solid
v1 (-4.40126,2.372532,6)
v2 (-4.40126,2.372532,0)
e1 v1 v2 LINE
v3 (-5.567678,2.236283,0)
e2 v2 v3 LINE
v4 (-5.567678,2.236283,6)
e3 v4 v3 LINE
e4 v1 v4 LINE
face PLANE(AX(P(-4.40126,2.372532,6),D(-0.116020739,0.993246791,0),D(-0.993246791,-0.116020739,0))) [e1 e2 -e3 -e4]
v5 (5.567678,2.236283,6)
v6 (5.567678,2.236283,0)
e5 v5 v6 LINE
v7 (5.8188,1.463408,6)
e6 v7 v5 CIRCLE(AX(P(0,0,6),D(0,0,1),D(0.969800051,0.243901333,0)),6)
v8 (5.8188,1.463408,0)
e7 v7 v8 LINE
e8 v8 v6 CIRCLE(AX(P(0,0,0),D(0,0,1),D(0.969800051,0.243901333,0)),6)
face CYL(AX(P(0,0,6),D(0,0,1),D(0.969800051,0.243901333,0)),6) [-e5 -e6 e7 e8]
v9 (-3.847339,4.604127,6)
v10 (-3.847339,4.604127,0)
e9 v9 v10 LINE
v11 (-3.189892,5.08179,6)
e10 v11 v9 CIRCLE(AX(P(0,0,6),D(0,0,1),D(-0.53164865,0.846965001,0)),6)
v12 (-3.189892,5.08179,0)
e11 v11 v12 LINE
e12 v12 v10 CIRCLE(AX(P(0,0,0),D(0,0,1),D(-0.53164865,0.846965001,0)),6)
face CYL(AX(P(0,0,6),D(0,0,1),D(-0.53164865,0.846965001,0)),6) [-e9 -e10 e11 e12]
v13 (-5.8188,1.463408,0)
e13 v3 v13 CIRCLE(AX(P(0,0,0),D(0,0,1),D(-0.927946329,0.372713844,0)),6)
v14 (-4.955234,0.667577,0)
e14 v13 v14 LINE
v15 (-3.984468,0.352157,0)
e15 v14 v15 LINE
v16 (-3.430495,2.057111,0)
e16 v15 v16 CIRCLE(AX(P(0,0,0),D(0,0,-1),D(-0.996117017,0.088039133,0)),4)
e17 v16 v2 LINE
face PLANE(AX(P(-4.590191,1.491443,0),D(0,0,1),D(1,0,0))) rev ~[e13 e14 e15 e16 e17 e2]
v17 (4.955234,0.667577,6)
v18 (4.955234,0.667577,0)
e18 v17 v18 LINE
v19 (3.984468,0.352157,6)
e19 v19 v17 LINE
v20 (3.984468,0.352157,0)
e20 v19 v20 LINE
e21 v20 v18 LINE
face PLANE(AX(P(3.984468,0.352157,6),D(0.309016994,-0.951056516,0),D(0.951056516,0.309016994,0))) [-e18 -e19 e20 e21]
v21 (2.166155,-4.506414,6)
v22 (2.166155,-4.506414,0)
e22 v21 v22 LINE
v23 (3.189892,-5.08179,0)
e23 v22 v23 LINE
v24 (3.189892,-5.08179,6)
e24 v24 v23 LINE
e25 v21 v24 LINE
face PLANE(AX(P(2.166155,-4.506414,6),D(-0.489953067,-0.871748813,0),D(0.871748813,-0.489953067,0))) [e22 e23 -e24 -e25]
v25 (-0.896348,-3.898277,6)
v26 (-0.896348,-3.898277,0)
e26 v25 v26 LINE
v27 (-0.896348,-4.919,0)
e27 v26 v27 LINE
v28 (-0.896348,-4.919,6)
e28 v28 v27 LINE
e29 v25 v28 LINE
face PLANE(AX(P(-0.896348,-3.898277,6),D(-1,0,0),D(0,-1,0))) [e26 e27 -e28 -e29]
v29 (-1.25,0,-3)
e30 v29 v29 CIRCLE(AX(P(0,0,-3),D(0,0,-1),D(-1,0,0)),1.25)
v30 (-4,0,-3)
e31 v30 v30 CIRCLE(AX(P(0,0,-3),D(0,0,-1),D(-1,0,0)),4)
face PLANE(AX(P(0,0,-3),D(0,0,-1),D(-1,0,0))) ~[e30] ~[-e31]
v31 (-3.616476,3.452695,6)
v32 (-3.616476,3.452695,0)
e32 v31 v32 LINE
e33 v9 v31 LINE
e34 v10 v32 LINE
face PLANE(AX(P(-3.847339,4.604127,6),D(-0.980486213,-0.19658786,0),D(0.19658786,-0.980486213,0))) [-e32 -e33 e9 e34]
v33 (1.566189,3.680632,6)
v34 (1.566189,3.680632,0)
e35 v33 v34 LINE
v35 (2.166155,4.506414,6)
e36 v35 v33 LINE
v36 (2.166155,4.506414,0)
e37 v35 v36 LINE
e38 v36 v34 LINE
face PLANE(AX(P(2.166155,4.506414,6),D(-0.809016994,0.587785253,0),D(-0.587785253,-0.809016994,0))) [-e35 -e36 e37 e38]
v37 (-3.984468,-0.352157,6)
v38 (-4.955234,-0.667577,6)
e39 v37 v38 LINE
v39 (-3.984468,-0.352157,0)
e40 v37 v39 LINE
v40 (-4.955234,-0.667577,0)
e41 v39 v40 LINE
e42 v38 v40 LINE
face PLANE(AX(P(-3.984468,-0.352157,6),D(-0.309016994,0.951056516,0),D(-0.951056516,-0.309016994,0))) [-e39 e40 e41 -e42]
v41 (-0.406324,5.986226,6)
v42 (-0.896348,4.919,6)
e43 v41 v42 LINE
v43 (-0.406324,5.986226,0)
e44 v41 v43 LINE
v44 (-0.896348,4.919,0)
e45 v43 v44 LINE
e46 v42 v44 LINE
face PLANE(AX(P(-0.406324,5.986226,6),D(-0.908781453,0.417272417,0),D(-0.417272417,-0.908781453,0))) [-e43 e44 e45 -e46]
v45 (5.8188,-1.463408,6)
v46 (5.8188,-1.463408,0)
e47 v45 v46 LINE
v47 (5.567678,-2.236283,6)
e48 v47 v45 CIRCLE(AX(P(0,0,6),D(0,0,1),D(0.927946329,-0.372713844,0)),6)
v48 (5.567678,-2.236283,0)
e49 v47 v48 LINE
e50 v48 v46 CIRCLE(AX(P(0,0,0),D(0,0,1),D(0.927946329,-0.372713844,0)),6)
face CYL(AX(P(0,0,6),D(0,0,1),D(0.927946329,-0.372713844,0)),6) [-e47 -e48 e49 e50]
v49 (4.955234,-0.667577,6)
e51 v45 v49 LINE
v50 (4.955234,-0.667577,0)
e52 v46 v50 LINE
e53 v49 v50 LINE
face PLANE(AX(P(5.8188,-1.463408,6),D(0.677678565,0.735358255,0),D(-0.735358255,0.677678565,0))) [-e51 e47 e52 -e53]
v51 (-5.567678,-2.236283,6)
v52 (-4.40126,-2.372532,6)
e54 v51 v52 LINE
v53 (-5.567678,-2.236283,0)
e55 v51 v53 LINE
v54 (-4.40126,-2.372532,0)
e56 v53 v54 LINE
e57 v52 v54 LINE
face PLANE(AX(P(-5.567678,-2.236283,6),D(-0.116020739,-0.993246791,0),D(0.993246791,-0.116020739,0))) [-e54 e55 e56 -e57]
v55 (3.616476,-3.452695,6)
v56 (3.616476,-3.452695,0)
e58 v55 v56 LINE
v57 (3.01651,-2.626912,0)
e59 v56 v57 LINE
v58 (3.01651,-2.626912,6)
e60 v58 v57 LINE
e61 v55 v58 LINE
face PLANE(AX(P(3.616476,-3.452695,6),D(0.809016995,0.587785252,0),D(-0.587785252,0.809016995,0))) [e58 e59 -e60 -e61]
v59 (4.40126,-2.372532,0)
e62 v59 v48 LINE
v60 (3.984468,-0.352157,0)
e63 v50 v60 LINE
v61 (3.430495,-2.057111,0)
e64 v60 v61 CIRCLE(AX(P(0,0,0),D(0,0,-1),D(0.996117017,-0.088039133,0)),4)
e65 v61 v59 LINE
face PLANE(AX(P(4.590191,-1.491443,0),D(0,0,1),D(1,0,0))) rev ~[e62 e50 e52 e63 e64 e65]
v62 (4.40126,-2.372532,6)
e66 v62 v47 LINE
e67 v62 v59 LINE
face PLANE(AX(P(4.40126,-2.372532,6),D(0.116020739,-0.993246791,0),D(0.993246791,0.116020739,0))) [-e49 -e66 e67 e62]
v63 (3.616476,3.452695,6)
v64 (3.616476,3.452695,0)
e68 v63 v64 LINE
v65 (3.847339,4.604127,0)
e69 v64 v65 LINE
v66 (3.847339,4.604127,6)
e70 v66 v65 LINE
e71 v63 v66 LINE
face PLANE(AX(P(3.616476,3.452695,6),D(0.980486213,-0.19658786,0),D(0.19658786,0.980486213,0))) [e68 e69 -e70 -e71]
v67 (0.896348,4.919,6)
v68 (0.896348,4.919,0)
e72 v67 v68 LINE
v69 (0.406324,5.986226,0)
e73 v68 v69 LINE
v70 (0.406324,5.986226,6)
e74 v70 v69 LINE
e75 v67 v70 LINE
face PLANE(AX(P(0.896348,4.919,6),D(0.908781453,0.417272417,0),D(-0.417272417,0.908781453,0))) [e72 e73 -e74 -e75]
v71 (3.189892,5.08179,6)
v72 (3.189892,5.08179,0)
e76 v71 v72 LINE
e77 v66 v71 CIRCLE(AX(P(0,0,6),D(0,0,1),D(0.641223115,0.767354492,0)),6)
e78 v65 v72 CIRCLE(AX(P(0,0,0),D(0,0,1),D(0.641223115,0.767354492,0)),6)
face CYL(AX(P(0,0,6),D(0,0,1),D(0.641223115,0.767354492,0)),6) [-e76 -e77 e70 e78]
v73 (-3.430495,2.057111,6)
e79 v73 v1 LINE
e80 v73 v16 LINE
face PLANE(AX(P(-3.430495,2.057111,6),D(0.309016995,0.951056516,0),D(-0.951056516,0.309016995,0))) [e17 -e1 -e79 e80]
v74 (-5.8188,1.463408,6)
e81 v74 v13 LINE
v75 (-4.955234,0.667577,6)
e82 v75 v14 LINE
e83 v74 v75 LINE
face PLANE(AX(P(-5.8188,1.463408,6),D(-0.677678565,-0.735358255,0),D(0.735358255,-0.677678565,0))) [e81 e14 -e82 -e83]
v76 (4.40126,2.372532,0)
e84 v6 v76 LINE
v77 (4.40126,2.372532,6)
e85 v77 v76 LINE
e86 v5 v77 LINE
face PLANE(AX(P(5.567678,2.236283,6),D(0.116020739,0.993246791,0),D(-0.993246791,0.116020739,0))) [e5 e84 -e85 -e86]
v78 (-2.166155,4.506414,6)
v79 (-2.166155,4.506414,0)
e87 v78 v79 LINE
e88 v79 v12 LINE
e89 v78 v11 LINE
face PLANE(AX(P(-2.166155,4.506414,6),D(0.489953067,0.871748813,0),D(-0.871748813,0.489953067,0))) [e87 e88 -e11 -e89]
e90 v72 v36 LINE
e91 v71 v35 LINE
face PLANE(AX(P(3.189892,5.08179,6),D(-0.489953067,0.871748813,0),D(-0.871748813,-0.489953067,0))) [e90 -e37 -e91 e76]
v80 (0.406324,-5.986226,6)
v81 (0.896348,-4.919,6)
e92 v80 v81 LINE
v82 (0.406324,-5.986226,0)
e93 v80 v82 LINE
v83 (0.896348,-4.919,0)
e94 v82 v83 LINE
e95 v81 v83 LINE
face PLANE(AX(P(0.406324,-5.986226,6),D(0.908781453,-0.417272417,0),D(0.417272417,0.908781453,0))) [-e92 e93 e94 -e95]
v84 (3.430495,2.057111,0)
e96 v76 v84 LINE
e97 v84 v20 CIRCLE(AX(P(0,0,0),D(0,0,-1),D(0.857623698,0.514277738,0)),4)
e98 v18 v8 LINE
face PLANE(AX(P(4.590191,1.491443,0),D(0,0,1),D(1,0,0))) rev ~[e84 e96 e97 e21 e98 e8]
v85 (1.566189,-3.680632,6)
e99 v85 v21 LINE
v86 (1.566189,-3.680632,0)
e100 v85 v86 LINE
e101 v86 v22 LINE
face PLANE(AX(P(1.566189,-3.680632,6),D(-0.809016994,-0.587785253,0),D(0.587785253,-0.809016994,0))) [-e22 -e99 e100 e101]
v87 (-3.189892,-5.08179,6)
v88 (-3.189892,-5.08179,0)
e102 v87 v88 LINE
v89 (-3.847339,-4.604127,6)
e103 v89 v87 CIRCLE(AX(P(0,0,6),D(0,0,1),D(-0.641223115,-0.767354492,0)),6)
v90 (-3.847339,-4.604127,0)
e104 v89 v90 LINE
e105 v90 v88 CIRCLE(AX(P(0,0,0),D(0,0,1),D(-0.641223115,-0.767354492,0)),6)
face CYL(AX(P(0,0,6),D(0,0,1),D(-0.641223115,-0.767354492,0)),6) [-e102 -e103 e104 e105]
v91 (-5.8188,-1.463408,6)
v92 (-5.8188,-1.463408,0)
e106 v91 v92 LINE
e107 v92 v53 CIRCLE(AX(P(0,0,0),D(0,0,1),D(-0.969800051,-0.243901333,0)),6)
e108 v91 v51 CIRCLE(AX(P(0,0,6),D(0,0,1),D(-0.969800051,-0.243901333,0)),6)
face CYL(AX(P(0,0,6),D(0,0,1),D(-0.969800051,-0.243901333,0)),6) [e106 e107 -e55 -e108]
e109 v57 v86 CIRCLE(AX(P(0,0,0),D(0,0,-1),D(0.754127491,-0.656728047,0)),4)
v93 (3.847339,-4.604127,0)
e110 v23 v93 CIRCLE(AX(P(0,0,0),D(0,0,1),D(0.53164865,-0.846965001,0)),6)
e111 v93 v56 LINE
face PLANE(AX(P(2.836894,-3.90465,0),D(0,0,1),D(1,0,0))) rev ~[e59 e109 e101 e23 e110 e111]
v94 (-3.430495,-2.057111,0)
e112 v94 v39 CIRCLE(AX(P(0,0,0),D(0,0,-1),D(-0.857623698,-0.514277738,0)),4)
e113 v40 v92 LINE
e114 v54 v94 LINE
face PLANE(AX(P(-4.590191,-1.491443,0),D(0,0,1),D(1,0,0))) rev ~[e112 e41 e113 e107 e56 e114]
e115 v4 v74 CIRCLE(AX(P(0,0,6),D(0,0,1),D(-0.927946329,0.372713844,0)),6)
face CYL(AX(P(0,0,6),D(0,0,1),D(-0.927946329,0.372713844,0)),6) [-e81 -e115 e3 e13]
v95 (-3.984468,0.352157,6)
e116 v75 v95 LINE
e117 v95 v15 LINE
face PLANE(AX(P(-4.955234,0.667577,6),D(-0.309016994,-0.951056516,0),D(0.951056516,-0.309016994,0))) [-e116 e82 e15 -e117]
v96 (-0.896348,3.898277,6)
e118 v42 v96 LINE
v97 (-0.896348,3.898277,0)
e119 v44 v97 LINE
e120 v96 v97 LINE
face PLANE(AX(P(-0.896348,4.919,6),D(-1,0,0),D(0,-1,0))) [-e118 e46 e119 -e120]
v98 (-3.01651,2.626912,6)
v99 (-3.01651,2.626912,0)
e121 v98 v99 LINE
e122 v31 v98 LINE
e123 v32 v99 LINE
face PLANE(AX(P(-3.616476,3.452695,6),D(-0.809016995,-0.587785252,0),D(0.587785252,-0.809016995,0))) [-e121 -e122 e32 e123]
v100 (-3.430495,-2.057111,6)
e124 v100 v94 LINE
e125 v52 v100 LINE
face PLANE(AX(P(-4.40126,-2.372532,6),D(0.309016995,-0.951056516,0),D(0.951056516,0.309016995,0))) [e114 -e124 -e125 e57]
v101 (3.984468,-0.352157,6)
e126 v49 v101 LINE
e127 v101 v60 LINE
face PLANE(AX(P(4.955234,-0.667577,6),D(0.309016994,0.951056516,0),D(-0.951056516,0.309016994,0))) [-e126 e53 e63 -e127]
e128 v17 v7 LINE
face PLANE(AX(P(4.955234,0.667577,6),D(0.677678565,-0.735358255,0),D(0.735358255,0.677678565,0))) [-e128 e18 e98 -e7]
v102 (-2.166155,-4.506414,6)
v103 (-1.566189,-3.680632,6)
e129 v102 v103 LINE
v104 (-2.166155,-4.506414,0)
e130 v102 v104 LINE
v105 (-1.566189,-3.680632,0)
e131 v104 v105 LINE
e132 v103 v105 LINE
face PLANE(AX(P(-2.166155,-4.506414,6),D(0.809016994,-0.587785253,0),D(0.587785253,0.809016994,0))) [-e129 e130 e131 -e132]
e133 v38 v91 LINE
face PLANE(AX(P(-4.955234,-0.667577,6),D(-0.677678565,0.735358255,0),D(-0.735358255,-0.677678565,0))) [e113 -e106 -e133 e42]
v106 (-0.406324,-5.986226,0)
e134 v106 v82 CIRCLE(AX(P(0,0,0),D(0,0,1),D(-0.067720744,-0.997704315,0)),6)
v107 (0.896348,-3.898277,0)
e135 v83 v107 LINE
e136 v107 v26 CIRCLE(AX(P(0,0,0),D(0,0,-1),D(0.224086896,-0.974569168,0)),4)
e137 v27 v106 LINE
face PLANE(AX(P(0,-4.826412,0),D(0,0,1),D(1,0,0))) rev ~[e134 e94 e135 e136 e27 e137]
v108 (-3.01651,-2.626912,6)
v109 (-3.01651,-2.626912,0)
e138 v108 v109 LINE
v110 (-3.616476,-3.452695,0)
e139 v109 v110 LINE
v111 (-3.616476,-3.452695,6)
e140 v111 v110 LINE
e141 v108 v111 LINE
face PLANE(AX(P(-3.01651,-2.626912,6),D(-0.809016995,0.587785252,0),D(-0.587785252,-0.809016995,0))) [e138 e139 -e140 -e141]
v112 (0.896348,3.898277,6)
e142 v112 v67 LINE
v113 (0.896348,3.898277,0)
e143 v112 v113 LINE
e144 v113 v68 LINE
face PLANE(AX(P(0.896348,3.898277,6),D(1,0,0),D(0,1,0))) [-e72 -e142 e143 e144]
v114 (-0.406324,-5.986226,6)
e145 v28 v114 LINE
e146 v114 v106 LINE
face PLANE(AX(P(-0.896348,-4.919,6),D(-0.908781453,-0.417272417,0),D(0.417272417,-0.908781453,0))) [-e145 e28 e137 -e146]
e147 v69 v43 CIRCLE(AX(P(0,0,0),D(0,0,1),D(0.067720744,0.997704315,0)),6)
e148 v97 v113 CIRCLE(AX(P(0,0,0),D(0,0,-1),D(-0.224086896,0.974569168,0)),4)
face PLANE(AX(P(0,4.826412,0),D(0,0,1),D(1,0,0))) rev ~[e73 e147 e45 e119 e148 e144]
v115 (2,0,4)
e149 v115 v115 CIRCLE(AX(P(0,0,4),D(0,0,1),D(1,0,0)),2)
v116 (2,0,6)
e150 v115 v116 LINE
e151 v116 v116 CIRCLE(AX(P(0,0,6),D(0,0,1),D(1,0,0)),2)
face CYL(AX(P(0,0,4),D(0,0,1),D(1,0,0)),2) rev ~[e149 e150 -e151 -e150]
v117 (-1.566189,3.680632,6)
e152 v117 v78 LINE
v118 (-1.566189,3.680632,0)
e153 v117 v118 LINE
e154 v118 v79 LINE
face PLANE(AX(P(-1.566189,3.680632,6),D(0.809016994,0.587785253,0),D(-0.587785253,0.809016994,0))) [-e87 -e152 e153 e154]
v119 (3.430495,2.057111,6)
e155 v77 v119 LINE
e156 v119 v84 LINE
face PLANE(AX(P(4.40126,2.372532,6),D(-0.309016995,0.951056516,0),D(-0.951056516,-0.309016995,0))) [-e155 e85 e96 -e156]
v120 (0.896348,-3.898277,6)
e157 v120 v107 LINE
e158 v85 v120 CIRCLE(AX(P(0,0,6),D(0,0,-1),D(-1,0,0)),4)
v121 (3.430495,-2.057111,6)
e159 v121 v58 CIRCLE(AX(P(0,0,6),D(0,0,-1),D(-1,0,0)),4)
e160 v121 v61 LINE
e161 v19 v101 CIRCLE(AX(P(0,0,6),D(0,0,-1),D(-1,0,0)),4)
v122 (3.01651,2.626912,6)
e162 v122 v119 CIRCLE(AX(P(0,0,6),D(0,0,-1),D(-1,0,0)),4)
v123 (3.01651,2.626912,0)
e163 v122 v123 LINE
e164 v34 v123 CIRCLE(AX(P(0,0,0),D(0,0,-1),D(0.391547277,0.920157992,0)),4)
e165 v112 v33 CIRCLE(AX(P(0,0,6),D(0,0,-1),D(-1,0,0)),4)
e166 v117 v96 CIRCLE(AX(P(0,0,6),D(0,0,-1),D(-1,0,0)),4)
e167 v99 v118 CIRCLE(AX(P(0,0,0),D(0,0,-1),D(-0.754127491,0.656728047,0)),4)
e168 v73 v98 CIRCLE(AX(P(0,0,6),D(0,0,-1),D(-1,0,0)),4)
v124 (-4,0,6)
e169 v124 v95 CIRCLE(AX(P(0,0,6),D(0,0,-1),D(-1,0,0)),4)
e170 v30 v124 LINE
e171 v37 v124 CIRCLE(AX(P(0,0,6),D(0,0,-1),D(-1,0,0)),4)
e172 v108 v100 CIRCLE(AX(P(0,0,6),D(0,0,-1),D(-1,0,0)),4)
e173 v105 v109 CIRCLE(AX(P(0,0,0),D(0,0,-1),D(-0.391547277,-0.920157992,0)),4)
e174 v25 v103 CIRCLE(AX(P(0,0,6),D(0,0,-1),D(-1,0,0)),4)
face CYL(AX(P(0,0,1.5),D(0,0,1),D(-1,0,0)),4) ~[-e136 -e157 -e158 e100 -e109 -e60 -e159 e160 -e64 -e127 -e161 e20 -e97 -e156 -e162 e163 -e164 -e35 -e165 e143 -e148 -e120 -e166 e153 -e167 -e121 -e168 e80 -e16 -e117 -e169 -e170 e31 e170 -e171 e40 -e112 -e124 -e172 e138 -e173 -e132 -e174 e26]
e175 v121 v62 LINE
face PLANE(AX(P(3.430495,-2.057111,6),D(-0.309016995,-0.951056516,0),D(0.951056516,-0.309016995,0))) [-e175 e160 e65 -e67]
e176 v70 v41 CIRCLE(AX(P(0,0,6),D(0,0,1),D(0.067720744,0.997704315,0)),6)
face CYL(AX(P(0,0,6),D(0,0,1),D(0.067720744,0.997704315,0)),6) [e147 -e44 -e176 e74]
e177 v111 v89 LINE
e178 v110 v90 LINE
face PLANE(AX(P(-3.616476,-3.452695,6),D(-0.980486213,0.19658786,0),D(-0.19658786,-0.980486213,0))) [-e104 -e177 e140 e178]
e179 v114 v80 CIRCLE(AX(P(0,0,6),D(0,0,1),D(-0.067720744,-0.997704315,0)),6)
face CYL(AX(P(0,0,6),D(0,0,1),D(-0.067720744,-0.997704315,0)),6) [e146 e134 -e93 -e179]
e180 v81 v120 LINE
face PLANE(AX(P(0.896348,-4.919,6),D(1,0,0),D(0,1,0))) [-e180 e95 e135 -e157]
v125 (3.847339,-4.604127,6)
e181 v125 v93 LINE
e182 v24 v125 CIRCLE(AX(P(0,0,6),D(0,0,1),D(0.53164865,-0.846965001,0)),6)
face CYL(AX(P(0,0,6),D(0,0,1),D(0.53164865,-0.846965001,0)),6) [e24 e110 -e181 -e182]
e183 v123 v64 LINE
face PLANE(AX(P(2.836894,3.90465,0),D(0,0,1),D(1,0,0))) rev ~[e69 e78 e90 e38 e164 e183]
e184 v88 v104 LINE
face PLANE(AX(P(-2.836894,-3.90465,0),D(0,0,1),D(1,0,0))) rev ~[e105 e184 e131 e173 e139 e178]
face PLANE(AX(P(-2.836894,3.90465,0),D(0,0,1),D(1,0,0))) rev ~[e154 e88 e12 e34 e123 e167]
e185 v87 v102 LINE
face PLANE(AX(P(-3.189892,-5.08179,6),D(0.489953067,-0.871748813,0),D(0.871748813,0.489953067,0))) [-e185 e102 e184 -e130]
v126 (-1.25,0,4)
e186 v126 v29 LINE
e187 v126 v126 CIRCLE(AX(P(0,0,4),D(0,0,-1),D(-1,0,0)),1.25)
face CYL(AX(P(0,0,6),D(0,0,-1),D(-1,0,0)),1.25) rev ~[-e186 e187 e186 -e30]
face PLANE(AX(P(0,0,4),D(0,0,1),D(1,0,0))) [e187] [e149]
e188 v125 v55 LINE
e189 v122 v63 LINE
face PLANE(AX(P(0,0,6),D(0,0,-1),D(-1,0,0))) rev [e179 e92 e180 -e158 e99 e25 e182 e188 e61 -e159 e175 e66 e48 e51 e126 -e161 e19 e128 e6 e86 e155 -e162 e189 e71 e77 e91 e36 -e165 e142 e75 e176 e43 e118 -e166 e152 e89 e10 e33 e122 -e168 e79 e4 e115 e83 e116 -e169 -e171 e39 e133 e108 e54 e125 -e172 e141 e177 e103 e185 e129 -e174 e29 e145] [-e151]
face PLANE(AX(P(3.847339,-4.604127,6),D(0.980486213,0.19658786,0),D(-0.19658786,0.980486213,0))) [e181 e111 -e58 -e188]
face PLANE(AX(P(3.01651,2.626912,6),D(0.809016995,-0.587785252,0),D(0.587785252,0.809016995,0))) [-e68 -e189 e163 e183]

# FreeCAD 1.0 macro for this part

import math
import FreeCAD as App
import Part
import Sketcher

V = App.Vector
Q = App.Units.Quantity

doc = App.newDocument("Part")
body = doc.addObject("PartDesign::Body", "Body")

sketch1 = doc.addObject("Sketcher::SketchObject", "Sketch")
body.addObject(sketch1)
sketch1.AttachmentSupport = (doc.XZ_Plane, [""])
sketch1.MapMode = "FlatFace"
sketch1.addGeometry([
    Part.LineSegment(V(0, 6, 0), V(0, -3, 0)),
    Part.LineSegment(V(0, -3, 0), V(4, -3, 0)),
    Part.LineSegment(V(4, -3, 0), V(4, 6, 0)),
    Part.LineSegment(V(4, 6, 0), V(0, 6, 0)),
], False)
sketch1.addConstraint([
    Sketcher.Constraint("Coincident", 0, 2, 1, 1),
    Sketcher.Constraint("Coincident", 1, 2, 2, 1),
    Sketcher.Constraint("Coincident", 2, 2, 3, 1),
    Sketcher.Constraint("Coincident", 3, 2, 0, 1),
    Sketcher.Constraint("Vertical", 0),
    Sketcher.Constraint("Horizontal", 1),
    Sketcher.Constraint("Vertical", 2),
    Sketcher.Constraint("Horizontal", 3),
    Sketcher.Constraint("PointOnObject", 0, 2, -2),
    Sketcher.Constraint("DistanceX", 1, 1, 1, 2, Q("4 mm")),
    Sketcher.Constraint("DistanceY", 0, 2, 0, 1, Q("9 mm")),
    Sketcher.Constraint("DistanceY", 0, 2, -1, 1, Q("3 mm")),
])
revolution = doc.addObject("PartDesign::Revolution", "Revolution")
body.addObject(revolution)
revolution.Profile = sketch1
revolution.ReferenceAxis = (sketch1, ["V_Axis"])
revolution.Angle = 360

sketch2 = doc.addObject("Sketcher::SketchObject", "Sketch001")
body.addObject(sketch2)
sketch2.AttachmentSupport = (doc.XY_Plane, [""])
sketch2.MapMode = "FlatFace"
sketch2.AttachmentOffset = App.Placement(V(0, 0, 6), App.Rotation())
sketch2.addGeometry([
    Part.LineSegment(V(3.984468, 0.352157, 0), V(4.955234, 0.667577, 0)),
    Part.LineSegment(V(4.955234, 0.667577, 0), V(5.8188, 1.463408, 0)),
    Part.ArcOfCircle(Part.Circle(V(0, 0, 0), V(0, 0, 1), 6), math.radians(14.116915), math.radians(21.883085)),
    Part.LineSegment(V(5.567678, 2.236283, 0), V(4.40126, 2.372532, 0)),
    Part.LineSegment(V(4.40126, 2.372532, 0), V(3.430495, 2.057111, 0)),
    Part.ArcOfCircle(Part.Circle(V(0, 0, 0), V(0, 0, 1), 4), math.radians(5.05081), math.radians(30.94919)),
], False)
sketch2.addConstraint([
    Sketcher.Constraint("Coincident", 0, 2, 1, 1),
    Sketcher.Constraint("Coincident", 1, 2, 2, 1),
    Sketcher.Constraint("Coincident", 2, 2, 3, 1),
    Sketcher.Constraint("Coincident", 3, 2, 4, 1),
    Sketcher.Constraint("Coincident", 4, 2, 5, 2),
    Sketcher.Constraint("Coincident", 5, 1, 0, 1),
    Sketcher.Constraint("Coincident", 2, 3, -1, 1),
    Sketcher.Constraint("Coincident", 5, 3, -1, 1),
    Sketcher.Constraint("Parallel", 0, 4),
    Sketcher.Constraint("Equal", 1, 3),
    Sketcher.Constraint("Equal", 0, 4),
    Sketcher.Constraint("Radius", 2, Q("6 mm")),
    Sketcher.Constraint("Radius", 5, Q("4 mm")),
    Sketcher.Constraint("Angle", 0, Q("18 deg")),
    Sketcher.Constraint("DistanceX", -1, 1, 1, 2, Q("5.8188 mm")),
    Sketcher.Constraint("Distance", 1, Q("1.174348 mm")),
    Sketcher.Constraint("DistanceX", -1, 1, 3, 2, Q("4.40126 mm")),
    Sketcher.Constraint("DistanceY", -1, 1, 3, 2, Q("2.372532 mm")),
])
pad1 = doc.addObject("PartDesign::Pad", "Pad")
body.addObject(pad1)
pad1.Profile = sketch2
pad1.Length = 6
pad1.Reversed = True

sketch3 = doc.addObject("Sketcher::SketchObject", "Sketch002")
body.addObject(sketch3)
sketch3.AttachmentSupport = (doc.XY_Plane, [""])
sketch3.MapMode = "FlatFace"
sketch3.AttachmentOffset = App.Placement(V(0, 0, 6), App.Rotation())
sketch3.addGeometry([
    Part.LineSegment(V(3.01651, 2.626912, 0), V(3.616476, 3.452695, 0)),
    Part.LineSegment(V(3.616476, 3.452695, 0), V(3.847339, 4.604127, 0)),
    Part.ArcOfCircle(Part.Circle(V(0, 0, 0), V(0, 0, 1), 6), math.radians(50.116915), math.radians(57.883085)),
    Part.LineSegment(V(3.189892, 5.08179, 0), V(2.166155, 4.506414, 0)),
    Part.LineSegment(V(2.166155, 4.506414, 0), V(1.566189, 3.680632, 0)),
    Part.ArcOfCircle(Part.Circle(V(0, 0, 0), V(0, 0, 1), 4), math.radians(41.05081), math.radians(66.94919)),
], False)
sketch3.addConstraint([
    Sketcher.Constraint("Coincident", 0, 2, 1, 1),
    Sketcher.Constraint("Coincident", 1, 2, 2, 1),
    Sketcher.Constraint("Coincident", 2, 2, 3, 1),
    Sketcher.Constraint("Coincident", 3, 2, 4, 1),
    Sketcher.Constraint("Coincident", 4, 2, 5, 2),
    Sketcher.Constraint("Coincident", 5, 1, 0, 1),
    Sketcher.Constraint("Coincident", 2, 3, -1, 1),
    Sketcher.Constraint("Coincident", 5, 3, -1, 1),
    Sketcher.Constraint("Parallel", 0, 4),
    Sketcher.Constraint("Equal", 1, 3),
    Sketcher.Constraint("Equal", 0, 4),
    Sketcher.Constraint("Radius", 2, Q("6 mm")),
    Sketcher.Constraint("Radius", 5, Q("4 mm")),
    Sketcher.Constraint("Angle", 0, Q("54 deg")),
    Sketcher.Constraint("Distance", 1, Q("1.174348 mm")),
    Sketcher.Constraint("DistanceX", -1, 1, 1, 2, Q("3.847339 mm")),
    Sketcher.Constraint("DistanceX", -1, 1, 2, 2, Q("3.189892 mm")),
    Sketcher.Constraint("DistanceX", -1, 1, 4, 2, Q("1.566189 mm")),
])
pad2 = doc.addObject("PartDesign::Pad", "Pad001")
body.addObject(pad2)
pad2.Profile = sketch3
pad2.Length = 6
pad2.Reversed = True

sketch4 = doc.addObject("Sketcher::SketchObject", "Sketch003")
body.addObject(sketch4)
sketch4.AttachmentSupport = (doc.XY_Plane, [""])
sketch4.MapMode = "FlatFace"
sketch4.AttachmentOffset = App.Placement(V(0, 0, 6), App.Rotation())
sketch4.addGeometry([
    Part.LineSegment(V(0.896348, 3.898277, 0), V(0.896348, 4.919, 0)),
    Part.LineSegment(V(0.896348, 4.919, 0), V(0.406324, 5.986226, 0)),
    Part.ArcOfCircle(Part.Circle(V(0, 0, 0), V(0, 0, 1), 6), math.radians(86.116915), math.radians(93.883085)),
    Part.LineSegment(V(-0.406324, 5.986226, 0), V(-0.896348, 4.919, 0)),
    Part.LineSegment(V(-0.896348, 4.919, 0), V(-0.896348, 3.898277, 0)),
    Part.ArcOfCircle(Part.Circle(V(0, 0, 0), V(0, 0, 1), 4), math.radians(77.05081), math.radians(102.94919)),
], False)
sketch4.addConstraint([
    Sketcher.Constraint("Coincident", 0, 2, 1, 1),
    Sketcher.Constraint("Coincident", 1, 2, 2, 1),
    Sketcher.Constraint("Coincident", 2, 2, 3, 1),
    Sketcher.Constraint("Coincident", 3, 2, 4, 1),
    Sketcher.Constraint("Coincident", 4, 2, 5, 2),
    Sketcher.Constraint("Coincident", 5, 1, 0, 1),
    Sketcher.Constraint("Vertical", 0),
    Sketcher.Constraint("Vertical", 4),
    Sketcher.Constraint("Coincident", 2, 3, -1, 1),
    Sketcher.Constraint("Coincident", 5, 3, -1, 1),
    Sketcher.Constraint("Symmetric", 0, 2, 3, 2, -2),
    Sketcher.Constraint("Horizontal", 1, 2, 2, 2),
    Sketcher.Constraint("Radius", 2, Q("6 mm")),
    Sketcher.Constraint("Radius", 5, Q("4 mm")),
    Sketcher.Constraint("DistanceY", -1, 1, 0, 2, Q("4.919 mm")),
    Sketcher.Constraint("Distance", 1, Q("1.174348 mm")),
    Sketcher.Constraint("DistanceY", 0, 1, 0, 2, Q("1.020723 mm")),
])
pad3 = doc.addObject("PartDesign::Pad", "Pad002")
body.addObject(pad3)
pad3.Profile = sketch4
pad3.Length = 6
pad3.Reversed = True

sketch5 = doc.addObject("Sketcher::SketchObject", "Sketch004")
body.addObject(sketch5)
sketch5.AttachmentSupport = (doc.XY_Plane, [""])
sketch5.MapMode = "FlatFace"
sketch5.AttachmentOffset = App.Placement(V(0, 0, 6), App.Rotation())
sketch5.addGeometry([
    Part.LineSegment(V(-1.566189, 3.680632, 0), V(-2.166155, 4.506414, 0)),
    Part.LineSegment(V(-2.166155, 4.506414, 0), V(-3.189892, 5.08179, 0)),
    Part.ArcOfCircle(Part.Circle(V(0, 0, 0), V(0, 0, 1), 6), math.radians(122.116915), math.radians(129.883085)),
    Part.LineSegment(V(-3.847339, 4.604127, 0), V(-3.616476, 3.452695, 0)),
    Part.LineSegment(V(-3.616476, 3.452695, 0), V(-3.01651, 2.626912, 0)),
    Part.ArcOfCircle(Part.Circle(V(0, 0, 0), V(0, 0, 1), 4), math.radians(113.05081), math.radians(138.94919)),
], False)
sketch5.addConstraint([
    Sketcher.Constraint("Coincident", 0, 2, 1, 1),
    Sketcher.Constraint("Coincident", 1, 2, 2, 1),
    Sketcher.Constraint("Coincident", 2, 2, 3, 1),
    Sketcher.Constraint("Coincident", 3, 2, 4, 1),
    Sketcher.Constraint("Coincident", 4, 2, 5, 2),
    Sketcher.Constraint("Coincident", 5, 1, 0, 1),
    Sketcher.Constraint("Coincident", 2, 3, -1, 1),
    Sketcher.Constraint("Coincident", 5, 3, -1, 1),
    Sketcher.Constraint("Parallel", 0, 4),
    Sketcher.Constraint("Equal", 1, 3),
    Sketcher.Constraint("Equal", 0, 4),
    Sketcher.Constraint("Radius", 2, Q("6 mm")),
    Sketcher.Constraint("Radius", 5, Q("4 mm")),
    Sketcher.Constraint("Angle", 0, Q("126 deg")),
    Sketcher.Constraint("Distance", 1, Q("1.174348 mm")),
    Sketcher.Constraint("DistanceX", 1, 2, -1, 1, Q("3.189892 mm")),
    Sketcher.Constraint("DistanceX", 2, 2, -1, 1, Q("3.847339 mm")),
    Sketcher.Constraint("DistanceX", 4, 2, -1, 1, Q("3.01651 mm")),
])
pad4 = doc.addObject("PartDesign::Pad", "Pad003")
body.addObject(pad4)
pad4.Profile = sketch5
pad4.Length = 6
pad4.Reversed = True

sketch6 = doc.addObject("Sketcher::SketchObject", "Sketch005")
body.addObject(sketch6)
sketch6.AttachmentSupport = (doc.XY_Plane, [""])
sketch6.MapMode = "FlatFace"
sketch6.AttachmentOffset = App.Placement(V(0, 0, 6), App.Rotation())
sketch6.addGeometry([
    Part.LineSegment(V(-3.430495, 2.057111, 0), V(-4.40126, 2.372532, 0)),
    Part.LineSegment(V(-4.40126, 2.372532, 0), V(-5.567678, 2.236283, 0)),
    Part.ArcOfCircle(Part.Circle(V(0, 0, 0), V(0, 0, 1), 6), math.radians(158.116915), math.radians(165.883085)),
    Part.LineSegment(V(-5.8188, 1.463408, 0), V(-4.955234, 0.667577, 0)),
    Part.LineSegment(V(-4.955234, 0.667577, 0), V(-3.984468, 0.352157, 0)),
    Part.ArcOfCircle(Part.Circle(V(0, 0, 0), V(0, 0, 1), 4), math.radians(149.05081), math.radians(174.94919)),
], False)
sketch6.addConstraint([
    Sketcher.Constraint("Coincident", 0, 2, 1, 1),
    Sketcher.Constraint("Coincident", 1, 2, 2, 1),
    Sketcher.Constraint("Coincident", 2, 2, 3, 1),
    Sketcher.Constraint("Coincident", 3, 2, 4, 1),
    Sketcher.Constraint("Coincident", 4, 2, 5, 2),
    Sketcher.Constraint("Coincident", 5, 1, 0, 1),
    Sketcher.Constraint("Coincident", 2, 3, -1, 1),
    Sketcher.Constraint("Coincident", 5, 3, -1, 1),
    Sketcher.Constraint("Parallel", 0, 4),
    Sketcher.Constraint("Equal", 1, 3),
    Sketcher.Constraint("Equal", 0, 4),
    Sketcher.Constraint("Radius", 2, Q("6 mm")),
    Sketcher.Constraint("Radius", 5, Q("4 mm")),
    Sketcher.Constraint("Angle", 0, Q("162 deg")),
    Sketcher.Constraint("DistanceX", 2, 2, -1, 1, Q("5.8188 mm")),
    Sketcher.Constraint("Distance", 1, Q("1.174348 mm")),
    Sketcher.Constraint("DistanceX", 0, 2, -1, 1, Q("4.40126 mm")),
    Sketcher.Constraint("DistanceY", -1, 1, 0, 2, Q("2.372532 mm")),
])
pad5 = doc.addObject("PartDesign::Pad", "Pad004")
body.addObject(pad5)
pad5.Profile = sketch6
pad5.Length = 6
pad5.Reversed = True

sketch7 = doc.addObject("Sketcher::SketchObject", "Sketch006")
body.addObject(sketch7)
sketch7.AttachmentSupport = (doc.XY_Plane, [""])
sketch7.MapMode = "FlatFace"
sketch7.AttachmentOffset = App.Placement(V(0, 0, 6), App.Rotation())
sketch7.addGeometry([
    Part.LineSegment(V(-3.984468, -0.352157, 0), V(-4.955234, -0.667577, 0)),
    Part.LineSegment(V(-4.955234, -0.667577, 0), V(-5.8188, -1.463408, 0)),
    Part.ArcOfCircle(Part.Circle(V(0, 0, 0), V(0, 0, 1), 6), math.radians(-165.883085), math.radians(-158.116915)),
    Part.LineSegment(V(-5.567678, -2.236283, 0), V(-4.40126, -2.372532, 0)),
    Part.LineSegment(V(-4.40126, -2.372532, 0), V(-3.430495, -2.057111, 0)),
    Part.ArcOfCircle(Part.Circle(V(0, 0, 0), V(0, 0, 1), 4), math.radians(-174.94919), math.radians(-149.05081)),
], False)
sketch7.addConstraint([
    Sketcher.Constraint("Coincident", 0, 2, 1, 1),
    Sketcher.Constraint("Coincident", 1, 2, 2, 1),
    Sketcher.Constraint("Coincident", 2, 2, 3, 1),
    Sketcher.Constraint("Coincident", 3, 2, 4, 1),
    Sketcher.Constraint("Coincident", 4, 2, 5, 2),
    Sketcher.Constraint("Coincident", 5, 1, 0, 1),
    Sketcher.Constraint("Coincident", 2, 3, -1, 1),
    Sketcher.Constraint("Coincident", 5, 3, -1, 1),
    Sketcher.Constraint("Parallel", 0, 4),
    Sketcher.Constraint("Equal", 1, 3),
    Sketcher.Constraint("Equal", 0, 4),
    Sketcher.Constraint("Radius", 2, Q("6 mm")),
    Sketcher.Constraint("Radius", 5, Q("4 mm")),
    Sketcher.Constraint("Angle", 0, Q("-162 deg")),
    Sketcher.Constraint("DistanceX", 1, 2, -1, 1, Q("5.8188 mm")),
    Sketcher.Constraint("Distance", 1, Q("1.174348 mm")),
    Sketcher.Constraint("DistanceX", 3, 2, -1, 1, Q("4.40126 mm")),
    Sketcher.Constraint("DistanceY", 3, 2, -1, 1, Q("2.372532 mm")),
])
pad6 = doc.addObject("PartDesign::Pad", "Pad005")
body.addObject(pad6)
pad6.Profile = sketch7
pad6.Length = 6
pad6.Reversed = True

sketch8 = doc.addObject("Sketcher::SketchObject", "Sketch007")
body.addObject(sketch8)
sketch8.AttachmentSupport = (doc.XY_Plane, [""])
sketch8.MapMode = "FlatFace"
sketch8.AttachmentOffset = App.Placement(V(0, 0, 6), App.Rotation())
sketch8.addGeometry([
    Part.LineSegment(V(-3.01651, -2.626912, 0), V(-3.616476, -3.452695, 0)),
    Part.LineSegment(V(-3.616476, -3.452695, 0), V(-3.847339, -4.604127, 0)),
    Part.ArcOfCircle(Part.Circle(V(0, 0, 0), V(0, 0, 1), 6), math.radians(-129.883085), math.radians(-122.116915)),
    Part.LineSegment(V(-3.189892, -5.08179, 0), V(-2.166155, -4.506414, 0)),
    Part.LineSegment(V(-2.166155, -4.506414, 0), V(-1.566189, -3.680632, 0)),
    Part.ArcOfCircle(Part.Circle(V(0, 0, 0), V(0, 0, 1), 4), math.radians(-138.94919), math.radians(-113.05081)),
], False)
sketch8.addConstraint([
    Sketcher.Constraint("Coincident", 0, 2, 1, 1),
    Sketcher.Constraint("Coincident", 1, 2, 2, 1),
    Sketcher.Constraint("Coincident", 2, 2, 3, 1),
    Sketcher.Constraint("Coincident", 3, 2, 4, 1),
    Sketcher.Constraint("Coincident", 4, 2, 5, 2),
    Sketcher.Constraint("Coincident", 5, 1, 0, 1),
    Sketcher.Constraint("Coincident", 2, 3, -1, 1),
    Sketcher.Constraint("Coincident", 5, 3, -1, 1),
    Sketcher.Constraint("Parallel", 0, 4),
    Sketcher.Constraint("Equal", 1, 3),
    Sketcher.Constraint("Equal", 0, 4),
    Sketcher.Constraint("Radius", 2, Q("6 mm")),
    Sketcher.Constraint("Radius", 5, Q("4 mm")),
    Sketcher.Constraint("Angle", 0, Q("-126 deg")),
    Sketcher.Constraint("Distance", 1, Q("1.174348 mm")),
    Sketcher.Constraint("DistanceX", 1, 2, -1, 1, Q("3.847339 mm")),
    Sketcher.Constraint("DistanceX", 2, 2, -1, 1, Q("3.189892 mm")),
    Sketcher.Constraint("DistanceX", 4, 2, -1, 1, Q("1.566189 mm")),
])
pad7 = doc.addObject("PartDesign::Pad", "Pad006")
body.addObject(pad7)
pad7.Profile = sketch8
pad7.Length = 6
pad7.Reversed = True

sketch9 = doc.addObject("Sketcher::SketchObject", "Sketch008")
body.addObject(sketch9)
sketch9.AttachmentSupport = (doc.XY_Plane, [""])
sketch9.MapMode = "FlatFace"
sketch9.AttachmentOffset = App.Placement(V(0, 0, 6), App.Rotation())
sketch9.addGeometry([
    Part.LineSegment(V(-0.896348, -3.898277, 0), V(-0.896348, -4.919, 0)),
    Part.LineSegment(V(-0.896348, -4.919, 0), V(-0.406324, -5.986226, 0)),
    Part.ArcOfCircle(Part.Circle(V(0, 0, 0), V(0, 0, 1), 6), math.radians(-93.883085), math.radians(-86.116915)),
    Part.LineSegment(V(0.406324, -5.986226, 0), V(0.896348, -4.919, 0)),
    Part.LineSegment(V(0.896348, -4.919, 0), V(0.896348, -3.898277, 0)),
    Part.ArcOfCircle(Part.Circle(V(0, 0, 0), V(0, 0, 1), 4), math.radians(-102.94919), math.radians(-77.05081)),
], False)
sketch9.addConstraint([
    Sketcher.Constraint("Coincident", 0, 2, 1, 1),
    Sketcher.Constraint("Coincident", 1, 2, 2, 1),
    Sketcher.Constraint("Coincident", 2, 2, 3, 1),
    Sketcher.Constraint("Coincident", 3, 2, 4, 1),
    Sketcher.Constraint("Coincident", 4, 2, 5, 2),
    Sketcher.Constraint("Coincident", 5, 1, 0, 1),
    Sketcher.Constraint("Vertical", 0),
    Sketcher.Constraint("Vertical", 4),
    Sketcher.Constraint("Coincident", 2, 3, -1, 1),
    Sketcher.Constraint("Coincident", 5, 3, -1, 1),
    Sketcher.Constraint("Symmetric", 0, 2, 3, 2, -2),
    Sketcher.Constraint("Horizontal", 1, 2, 2, 2),
    Sketcher.Constraint("Radius", 2, Q("6 mm")),
    Sketcher.Constraint("Radius", 5, Q("4 mm")),
    Sketcher.Constraint("DistanceY", 0, 2, -1, 1, Q("4.919 mm")),
    Sketcher.Constraint("Distance", 1, Q("1.174348 mm")),
    Sketcher.Constraint("DistanceY", 0, 2, 0, 1, Q("1.020723 mm")),
])
pad8 = doc.addObject("PartDesign::Pad", "Pad007")
body.addObject(pad8)
pad8.Profile = sketch9
pad8.Length = 6
pad8.Reversed = True

sketch10 = doc.addObject("Sketcher::SketchObject", "Sketch009")
body.addObject(sketch10)
sketch10.AttachmentSupport = (doc.XY_Plane, [""])
sketch10.MapMode = "FlatFace"
sketch10.AttachmentOffset = App.Placement(V(0, 0, 6), App.Rotation())
sketch10.addGeometry([
    Part.LineSegment(V(1.566189, -3.680632, 0), V(2.166155, -4.506414, 0)),
    Part.LineSegment(V(2.166155, -4.506414, 0), V(3.189892, -5.08179, 0)),
    Part.ArcOfCircle(Part.Circle(V(0, 0, 0), V(0, 0, 1), 6), math.radians(-57.883085), math.radians(-50.116915)),
    Part.LineSegment(V(3.847339, -4.604127, 0), V(3.616476, -3.452695, 0)),
    Part.LineSegment(V(3.616476, -3.452695, 0), V(3.01651, -2.626912, 0)),
    Part.ArcOfCircle(Part.Circle(V(0, 0, 0), V(0, 0, 1), 4), math.radians(-66.94919), math.radians(-41.05081)),
], False)
sketch10.addConstraint([
    Sketcher.Constraint("Coincident", 0, 2, 1, 1),
    Sketcher.Constraint("Coincident", 1, 2, 2, 1),
    Sketcher.Constraint("Coincident", 2, 2, 3, 1),
    Sketcher.Constraint("Coincident", 3, 2, 4, 1),
    Sketcher.Constraint("Coincident", 4, 2, 5, 2),
    Sketcher.Constraint("Coincident", 5, 1, 0, 1),
    Sketcher.Constraint("Coincident", 2, 3, -1, 1),
    Sketcher.Constraint("Coincident", 5, 3, -1, 1),
    Sketcher.Constraint("Parallel", 0, 4),
    Sketcher.Constraint("Equal", 1, 3),
    Sketcher.Constraint("Equal", 0, 4),
    Sketcher.Constraint("Radius", 2, Q("6 mm")),
    Sketcher.Constraint("Radius", 5, Q("4 mm")),
    Sketcher.Constraint("Angle", 0, Q("-54 deg")),
    Sketcher.Constraint("Distance", 1, Q("1.174348 mm")),
    Sketcher.Constraint("DistanceX", -1, 1, 1, 2, Q("3.189892 mm")),
    Sketcher.Constraint("DistanceX", -1, 1, 2, 2, Q("3.847339 mm")),
    Sketcher.Constraint("DistanceX", -1, 1, 4, 2, Q("3.01651 mm")),
])
pad9 = doc.addObject("PartDesign::Pad", "Pad008")
body.addObject(pad9)
pad9.Profile = sketch10
pad9.Length = 6
pad9.Reversed = True

sketch11 = doc.addObject("Sketcher::SketchObject", "Sketch010")
body.addObject(sketch11)
sketch11.AttachmentSupport = (doc.XY_Plane, [""])
sketch11.MapMode = "FlatFace"
sketch11.AttachmentOffset = App.Placement(V(0, 0, 6), App.Rotation())
sketch11.addGeometry([
    Part.LineSegment(V(3.430495, -2.057111, 0), V(4.40126, -2.372532, 0)),
    Part.LineSegment(V(4.40126, -2.372532, 0), V(5.567678, -2.236283, 0)),
    Part.ArcOfCircle(Part.Circle(V(0, 0, 0), V(0, 0, 1), 6), math.radians(-21.883085), math.radians(-14.116915)),
    Part.LineSegment(V(5.8188, -1.463408, 0), V(4.955234, -0.667577, 0)),
    Part.LineSegment(V(4.955234, -0.667577, 0), V(3.984468, -0.352157, 0)),
    Part.ArcOfCircle(Part.Circle(V(0, 0, 0), V(0, 0, 1), 4), math.radians(-30.94919), math.radians(-5.05081)),
], False)
sketch11.addConstraint([
    Sketcher.Constraint("Coincident", 0, 2, 1, 1),
    Sketcher.Constraint("Coincident", 1, 2, 2, 1),
    Sketcher.Constraint("Coincident", 2, 2, 3, 1),
    Sketcher.Constraint("Coincident", 3, 2, 4, 1),
    Sketcher.Constraint("Coincident", 4, 2, 5, 2),
    Sketcher.Constraint("Coincident", 5, 1, 0, 1),
    Sketcher.Constraint("Coincident", 2, 3, -1, 1),
    Sketcher.Constraint("Coincident", 5, 3, -1, 1),
    Sketcher.Constraint("Parallel", 0, 4),
    Sketcher.Constraint("Equal", 1, 3),
    Sketcher.Constraint("Equal", 0, 4),
    Sketcher.Constraint("Radius", 2, Q("6 mm")),
    Sketcher.Constraint("Radius", 5, Q("4 mm")),
    Sketcher.Constraint("Angle", 0, Q("-18 deg")),
    Sketcher.Constraint("DistanceX", -1, 1, 2, 2, Q("5.8188 mm")),
    Sketcher.Constraint("Distance", 1, Q("1.174348 mm")),
    Sketcher.Constraint("DistanceX", -1, 1, 0, 2, Q("4.40126 mm")),
    Sketcher.Constraint("DistanceY", 0, 2, -1, 1, Q("2.372532 mm")),
])
pad10 = doc.addObject("PartDesign::Pad", "Pad009")
body.addObject(pad10)
pad10.Profile = sketch11
pad10.Length = 6
pad10.Reversed = True

sketch12 = doc.addObject("Sketcher::SketchObject", "Sketch011")
body.addObject(sketch12)
sketch12.AttachmentSupport = (doc.XY_Plane, [""])
sketch12.MapMode = "FlatFace"
sketch12.AttachmentOffset = App.Placement(V(0, 0, 6), App.Rotation())
sketch12.addGeometry(Part.Circle(V(0, 0, 0), V(0, 0, 1), 1.25), False)
sketch12.addConstraint([
    Sketcher.Constraint("Coincident", 0, 3, -1, 1),
    Sketcher.Constraint("Diameter", 0, Q("2.5 mm")),
])
doc.recompute()
hole = doc.addObject("PartDesign::Hole", "Hole")
body.addObject(hole)
hole.Profile = sketch12
hole.ThreadType = "None"
hole.Diameter = 2.5
hole.DepthType = "ThroughAll"
hole.HoleCutType = "Counterbore"
hole.HoleCutDiameter = 4
hole.HoleCutDepth = 2

doc.recompute()
